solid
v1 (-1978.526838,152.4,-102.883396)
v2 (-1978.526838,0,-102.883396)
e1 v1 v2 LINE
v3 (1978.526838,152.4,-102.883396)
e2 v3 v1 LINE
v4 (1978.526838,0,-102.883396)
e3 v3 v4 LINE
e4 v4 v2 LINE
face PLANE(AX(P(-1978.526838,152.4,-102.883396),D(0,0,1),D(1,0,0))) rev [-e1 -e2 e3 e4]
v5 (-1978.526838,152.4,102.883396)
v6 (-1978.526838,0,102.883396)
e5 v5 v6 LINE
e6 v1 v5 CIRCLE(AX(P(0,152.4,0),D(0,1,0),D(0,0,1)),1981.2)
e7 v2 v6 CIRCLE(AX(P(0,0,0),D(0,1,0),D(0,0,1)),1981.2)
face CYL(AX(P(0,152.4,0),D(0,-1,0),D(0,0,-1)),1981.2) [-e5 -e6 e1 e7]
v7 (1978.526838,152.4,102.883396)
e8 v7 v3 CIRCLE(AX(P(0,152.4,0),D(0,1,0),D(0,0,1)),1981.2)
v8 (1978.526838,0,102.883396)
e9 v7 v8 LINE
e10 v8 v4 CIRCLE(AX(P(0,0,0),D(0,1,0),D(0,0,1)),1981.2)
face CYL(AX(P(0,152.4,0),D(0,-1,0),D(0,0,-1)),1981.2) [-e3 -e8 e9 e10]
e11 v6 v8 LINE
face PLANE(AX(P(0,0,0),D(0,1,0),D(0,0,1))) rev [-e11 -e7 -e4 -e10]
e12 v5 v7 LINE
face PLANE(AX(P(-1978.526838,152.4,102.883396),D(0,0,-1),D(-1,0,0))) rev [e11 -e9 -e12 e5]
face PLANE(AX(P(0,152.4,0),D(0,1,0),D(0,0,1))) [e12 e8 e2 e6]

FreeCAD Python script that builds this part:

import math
import FreeCAD as App
import Part
import Sketcher

V = App.Vector
Q = App.Units.Quantity

doc = App.newDocument("Part")
body = doc.addObject("PartDesign::Body", "Body")

# Sketch on XZ plane
sketch1 = doc.addObject("Sketcher::SketchObject", "Sketch")
body.addObject(sketch1)
sketch1.AttachmentSupport = (doc.XZ_Plane, [""])
sketch1.MapMode = "FlatFace"
sketch1.addGeometry([
    Part.LineSegment(V(1979, -103, 0), V(-1979, -103, 0)),
    Part.ArcOfCircle(Part.Circle(V(0, 0, 0), V(0, 0, 1), 1981), math.radians(177.02), math.radians(182.98)),
    Part.LineSegment(V(-1979, 103, 0), V(1979, 103, 0)),
    Part.ArcOfCircle(Part.Circle(V(0, 0, 0), V(0, 0, 1), 1981), math.radians(-2.98), math.radians(2.98)),
], False)
sketch1.addConstraint([
    Sketcher.Constraint("Coincident", 0, 2, 1, 2),
    Sketcher.Constraint("Coincident", 1, 1, 2, 1),
    Sketcher.Constraint("Coincident", 2, 2, 3, 2),
    Sketcher.Constraint("Coincident", 3, 1, 0, 1),
    Sketcher.Constraint("Horizontal", 0),
    Sketcher.Constraint("Horizontal", 2),
    Sketcher.Constraint("Coincident", 1, 3, -1, 1),
    Sketcher.Constraint("Coincident", 3, 3, -1, 1),
    Sketcher.Constraint("Equal", 1, 3),
    Sketcher.Constraint("Equal", 0, 2),
    Sketcher.Constraint("Radius", 1, Q("78 in")),
    Sketcher.Constraint("DistanceX", 0, 2, 0, 1, Q("3957.053675 mm")),
])
pad1 = doc.addObject("PartDesign::Pad", "Pad")
body.addObject(pad1)
pad1.Profile = sketch1
pad1.Length = Q("6 in")
pad1.Reversed = True

doc.recompute()
